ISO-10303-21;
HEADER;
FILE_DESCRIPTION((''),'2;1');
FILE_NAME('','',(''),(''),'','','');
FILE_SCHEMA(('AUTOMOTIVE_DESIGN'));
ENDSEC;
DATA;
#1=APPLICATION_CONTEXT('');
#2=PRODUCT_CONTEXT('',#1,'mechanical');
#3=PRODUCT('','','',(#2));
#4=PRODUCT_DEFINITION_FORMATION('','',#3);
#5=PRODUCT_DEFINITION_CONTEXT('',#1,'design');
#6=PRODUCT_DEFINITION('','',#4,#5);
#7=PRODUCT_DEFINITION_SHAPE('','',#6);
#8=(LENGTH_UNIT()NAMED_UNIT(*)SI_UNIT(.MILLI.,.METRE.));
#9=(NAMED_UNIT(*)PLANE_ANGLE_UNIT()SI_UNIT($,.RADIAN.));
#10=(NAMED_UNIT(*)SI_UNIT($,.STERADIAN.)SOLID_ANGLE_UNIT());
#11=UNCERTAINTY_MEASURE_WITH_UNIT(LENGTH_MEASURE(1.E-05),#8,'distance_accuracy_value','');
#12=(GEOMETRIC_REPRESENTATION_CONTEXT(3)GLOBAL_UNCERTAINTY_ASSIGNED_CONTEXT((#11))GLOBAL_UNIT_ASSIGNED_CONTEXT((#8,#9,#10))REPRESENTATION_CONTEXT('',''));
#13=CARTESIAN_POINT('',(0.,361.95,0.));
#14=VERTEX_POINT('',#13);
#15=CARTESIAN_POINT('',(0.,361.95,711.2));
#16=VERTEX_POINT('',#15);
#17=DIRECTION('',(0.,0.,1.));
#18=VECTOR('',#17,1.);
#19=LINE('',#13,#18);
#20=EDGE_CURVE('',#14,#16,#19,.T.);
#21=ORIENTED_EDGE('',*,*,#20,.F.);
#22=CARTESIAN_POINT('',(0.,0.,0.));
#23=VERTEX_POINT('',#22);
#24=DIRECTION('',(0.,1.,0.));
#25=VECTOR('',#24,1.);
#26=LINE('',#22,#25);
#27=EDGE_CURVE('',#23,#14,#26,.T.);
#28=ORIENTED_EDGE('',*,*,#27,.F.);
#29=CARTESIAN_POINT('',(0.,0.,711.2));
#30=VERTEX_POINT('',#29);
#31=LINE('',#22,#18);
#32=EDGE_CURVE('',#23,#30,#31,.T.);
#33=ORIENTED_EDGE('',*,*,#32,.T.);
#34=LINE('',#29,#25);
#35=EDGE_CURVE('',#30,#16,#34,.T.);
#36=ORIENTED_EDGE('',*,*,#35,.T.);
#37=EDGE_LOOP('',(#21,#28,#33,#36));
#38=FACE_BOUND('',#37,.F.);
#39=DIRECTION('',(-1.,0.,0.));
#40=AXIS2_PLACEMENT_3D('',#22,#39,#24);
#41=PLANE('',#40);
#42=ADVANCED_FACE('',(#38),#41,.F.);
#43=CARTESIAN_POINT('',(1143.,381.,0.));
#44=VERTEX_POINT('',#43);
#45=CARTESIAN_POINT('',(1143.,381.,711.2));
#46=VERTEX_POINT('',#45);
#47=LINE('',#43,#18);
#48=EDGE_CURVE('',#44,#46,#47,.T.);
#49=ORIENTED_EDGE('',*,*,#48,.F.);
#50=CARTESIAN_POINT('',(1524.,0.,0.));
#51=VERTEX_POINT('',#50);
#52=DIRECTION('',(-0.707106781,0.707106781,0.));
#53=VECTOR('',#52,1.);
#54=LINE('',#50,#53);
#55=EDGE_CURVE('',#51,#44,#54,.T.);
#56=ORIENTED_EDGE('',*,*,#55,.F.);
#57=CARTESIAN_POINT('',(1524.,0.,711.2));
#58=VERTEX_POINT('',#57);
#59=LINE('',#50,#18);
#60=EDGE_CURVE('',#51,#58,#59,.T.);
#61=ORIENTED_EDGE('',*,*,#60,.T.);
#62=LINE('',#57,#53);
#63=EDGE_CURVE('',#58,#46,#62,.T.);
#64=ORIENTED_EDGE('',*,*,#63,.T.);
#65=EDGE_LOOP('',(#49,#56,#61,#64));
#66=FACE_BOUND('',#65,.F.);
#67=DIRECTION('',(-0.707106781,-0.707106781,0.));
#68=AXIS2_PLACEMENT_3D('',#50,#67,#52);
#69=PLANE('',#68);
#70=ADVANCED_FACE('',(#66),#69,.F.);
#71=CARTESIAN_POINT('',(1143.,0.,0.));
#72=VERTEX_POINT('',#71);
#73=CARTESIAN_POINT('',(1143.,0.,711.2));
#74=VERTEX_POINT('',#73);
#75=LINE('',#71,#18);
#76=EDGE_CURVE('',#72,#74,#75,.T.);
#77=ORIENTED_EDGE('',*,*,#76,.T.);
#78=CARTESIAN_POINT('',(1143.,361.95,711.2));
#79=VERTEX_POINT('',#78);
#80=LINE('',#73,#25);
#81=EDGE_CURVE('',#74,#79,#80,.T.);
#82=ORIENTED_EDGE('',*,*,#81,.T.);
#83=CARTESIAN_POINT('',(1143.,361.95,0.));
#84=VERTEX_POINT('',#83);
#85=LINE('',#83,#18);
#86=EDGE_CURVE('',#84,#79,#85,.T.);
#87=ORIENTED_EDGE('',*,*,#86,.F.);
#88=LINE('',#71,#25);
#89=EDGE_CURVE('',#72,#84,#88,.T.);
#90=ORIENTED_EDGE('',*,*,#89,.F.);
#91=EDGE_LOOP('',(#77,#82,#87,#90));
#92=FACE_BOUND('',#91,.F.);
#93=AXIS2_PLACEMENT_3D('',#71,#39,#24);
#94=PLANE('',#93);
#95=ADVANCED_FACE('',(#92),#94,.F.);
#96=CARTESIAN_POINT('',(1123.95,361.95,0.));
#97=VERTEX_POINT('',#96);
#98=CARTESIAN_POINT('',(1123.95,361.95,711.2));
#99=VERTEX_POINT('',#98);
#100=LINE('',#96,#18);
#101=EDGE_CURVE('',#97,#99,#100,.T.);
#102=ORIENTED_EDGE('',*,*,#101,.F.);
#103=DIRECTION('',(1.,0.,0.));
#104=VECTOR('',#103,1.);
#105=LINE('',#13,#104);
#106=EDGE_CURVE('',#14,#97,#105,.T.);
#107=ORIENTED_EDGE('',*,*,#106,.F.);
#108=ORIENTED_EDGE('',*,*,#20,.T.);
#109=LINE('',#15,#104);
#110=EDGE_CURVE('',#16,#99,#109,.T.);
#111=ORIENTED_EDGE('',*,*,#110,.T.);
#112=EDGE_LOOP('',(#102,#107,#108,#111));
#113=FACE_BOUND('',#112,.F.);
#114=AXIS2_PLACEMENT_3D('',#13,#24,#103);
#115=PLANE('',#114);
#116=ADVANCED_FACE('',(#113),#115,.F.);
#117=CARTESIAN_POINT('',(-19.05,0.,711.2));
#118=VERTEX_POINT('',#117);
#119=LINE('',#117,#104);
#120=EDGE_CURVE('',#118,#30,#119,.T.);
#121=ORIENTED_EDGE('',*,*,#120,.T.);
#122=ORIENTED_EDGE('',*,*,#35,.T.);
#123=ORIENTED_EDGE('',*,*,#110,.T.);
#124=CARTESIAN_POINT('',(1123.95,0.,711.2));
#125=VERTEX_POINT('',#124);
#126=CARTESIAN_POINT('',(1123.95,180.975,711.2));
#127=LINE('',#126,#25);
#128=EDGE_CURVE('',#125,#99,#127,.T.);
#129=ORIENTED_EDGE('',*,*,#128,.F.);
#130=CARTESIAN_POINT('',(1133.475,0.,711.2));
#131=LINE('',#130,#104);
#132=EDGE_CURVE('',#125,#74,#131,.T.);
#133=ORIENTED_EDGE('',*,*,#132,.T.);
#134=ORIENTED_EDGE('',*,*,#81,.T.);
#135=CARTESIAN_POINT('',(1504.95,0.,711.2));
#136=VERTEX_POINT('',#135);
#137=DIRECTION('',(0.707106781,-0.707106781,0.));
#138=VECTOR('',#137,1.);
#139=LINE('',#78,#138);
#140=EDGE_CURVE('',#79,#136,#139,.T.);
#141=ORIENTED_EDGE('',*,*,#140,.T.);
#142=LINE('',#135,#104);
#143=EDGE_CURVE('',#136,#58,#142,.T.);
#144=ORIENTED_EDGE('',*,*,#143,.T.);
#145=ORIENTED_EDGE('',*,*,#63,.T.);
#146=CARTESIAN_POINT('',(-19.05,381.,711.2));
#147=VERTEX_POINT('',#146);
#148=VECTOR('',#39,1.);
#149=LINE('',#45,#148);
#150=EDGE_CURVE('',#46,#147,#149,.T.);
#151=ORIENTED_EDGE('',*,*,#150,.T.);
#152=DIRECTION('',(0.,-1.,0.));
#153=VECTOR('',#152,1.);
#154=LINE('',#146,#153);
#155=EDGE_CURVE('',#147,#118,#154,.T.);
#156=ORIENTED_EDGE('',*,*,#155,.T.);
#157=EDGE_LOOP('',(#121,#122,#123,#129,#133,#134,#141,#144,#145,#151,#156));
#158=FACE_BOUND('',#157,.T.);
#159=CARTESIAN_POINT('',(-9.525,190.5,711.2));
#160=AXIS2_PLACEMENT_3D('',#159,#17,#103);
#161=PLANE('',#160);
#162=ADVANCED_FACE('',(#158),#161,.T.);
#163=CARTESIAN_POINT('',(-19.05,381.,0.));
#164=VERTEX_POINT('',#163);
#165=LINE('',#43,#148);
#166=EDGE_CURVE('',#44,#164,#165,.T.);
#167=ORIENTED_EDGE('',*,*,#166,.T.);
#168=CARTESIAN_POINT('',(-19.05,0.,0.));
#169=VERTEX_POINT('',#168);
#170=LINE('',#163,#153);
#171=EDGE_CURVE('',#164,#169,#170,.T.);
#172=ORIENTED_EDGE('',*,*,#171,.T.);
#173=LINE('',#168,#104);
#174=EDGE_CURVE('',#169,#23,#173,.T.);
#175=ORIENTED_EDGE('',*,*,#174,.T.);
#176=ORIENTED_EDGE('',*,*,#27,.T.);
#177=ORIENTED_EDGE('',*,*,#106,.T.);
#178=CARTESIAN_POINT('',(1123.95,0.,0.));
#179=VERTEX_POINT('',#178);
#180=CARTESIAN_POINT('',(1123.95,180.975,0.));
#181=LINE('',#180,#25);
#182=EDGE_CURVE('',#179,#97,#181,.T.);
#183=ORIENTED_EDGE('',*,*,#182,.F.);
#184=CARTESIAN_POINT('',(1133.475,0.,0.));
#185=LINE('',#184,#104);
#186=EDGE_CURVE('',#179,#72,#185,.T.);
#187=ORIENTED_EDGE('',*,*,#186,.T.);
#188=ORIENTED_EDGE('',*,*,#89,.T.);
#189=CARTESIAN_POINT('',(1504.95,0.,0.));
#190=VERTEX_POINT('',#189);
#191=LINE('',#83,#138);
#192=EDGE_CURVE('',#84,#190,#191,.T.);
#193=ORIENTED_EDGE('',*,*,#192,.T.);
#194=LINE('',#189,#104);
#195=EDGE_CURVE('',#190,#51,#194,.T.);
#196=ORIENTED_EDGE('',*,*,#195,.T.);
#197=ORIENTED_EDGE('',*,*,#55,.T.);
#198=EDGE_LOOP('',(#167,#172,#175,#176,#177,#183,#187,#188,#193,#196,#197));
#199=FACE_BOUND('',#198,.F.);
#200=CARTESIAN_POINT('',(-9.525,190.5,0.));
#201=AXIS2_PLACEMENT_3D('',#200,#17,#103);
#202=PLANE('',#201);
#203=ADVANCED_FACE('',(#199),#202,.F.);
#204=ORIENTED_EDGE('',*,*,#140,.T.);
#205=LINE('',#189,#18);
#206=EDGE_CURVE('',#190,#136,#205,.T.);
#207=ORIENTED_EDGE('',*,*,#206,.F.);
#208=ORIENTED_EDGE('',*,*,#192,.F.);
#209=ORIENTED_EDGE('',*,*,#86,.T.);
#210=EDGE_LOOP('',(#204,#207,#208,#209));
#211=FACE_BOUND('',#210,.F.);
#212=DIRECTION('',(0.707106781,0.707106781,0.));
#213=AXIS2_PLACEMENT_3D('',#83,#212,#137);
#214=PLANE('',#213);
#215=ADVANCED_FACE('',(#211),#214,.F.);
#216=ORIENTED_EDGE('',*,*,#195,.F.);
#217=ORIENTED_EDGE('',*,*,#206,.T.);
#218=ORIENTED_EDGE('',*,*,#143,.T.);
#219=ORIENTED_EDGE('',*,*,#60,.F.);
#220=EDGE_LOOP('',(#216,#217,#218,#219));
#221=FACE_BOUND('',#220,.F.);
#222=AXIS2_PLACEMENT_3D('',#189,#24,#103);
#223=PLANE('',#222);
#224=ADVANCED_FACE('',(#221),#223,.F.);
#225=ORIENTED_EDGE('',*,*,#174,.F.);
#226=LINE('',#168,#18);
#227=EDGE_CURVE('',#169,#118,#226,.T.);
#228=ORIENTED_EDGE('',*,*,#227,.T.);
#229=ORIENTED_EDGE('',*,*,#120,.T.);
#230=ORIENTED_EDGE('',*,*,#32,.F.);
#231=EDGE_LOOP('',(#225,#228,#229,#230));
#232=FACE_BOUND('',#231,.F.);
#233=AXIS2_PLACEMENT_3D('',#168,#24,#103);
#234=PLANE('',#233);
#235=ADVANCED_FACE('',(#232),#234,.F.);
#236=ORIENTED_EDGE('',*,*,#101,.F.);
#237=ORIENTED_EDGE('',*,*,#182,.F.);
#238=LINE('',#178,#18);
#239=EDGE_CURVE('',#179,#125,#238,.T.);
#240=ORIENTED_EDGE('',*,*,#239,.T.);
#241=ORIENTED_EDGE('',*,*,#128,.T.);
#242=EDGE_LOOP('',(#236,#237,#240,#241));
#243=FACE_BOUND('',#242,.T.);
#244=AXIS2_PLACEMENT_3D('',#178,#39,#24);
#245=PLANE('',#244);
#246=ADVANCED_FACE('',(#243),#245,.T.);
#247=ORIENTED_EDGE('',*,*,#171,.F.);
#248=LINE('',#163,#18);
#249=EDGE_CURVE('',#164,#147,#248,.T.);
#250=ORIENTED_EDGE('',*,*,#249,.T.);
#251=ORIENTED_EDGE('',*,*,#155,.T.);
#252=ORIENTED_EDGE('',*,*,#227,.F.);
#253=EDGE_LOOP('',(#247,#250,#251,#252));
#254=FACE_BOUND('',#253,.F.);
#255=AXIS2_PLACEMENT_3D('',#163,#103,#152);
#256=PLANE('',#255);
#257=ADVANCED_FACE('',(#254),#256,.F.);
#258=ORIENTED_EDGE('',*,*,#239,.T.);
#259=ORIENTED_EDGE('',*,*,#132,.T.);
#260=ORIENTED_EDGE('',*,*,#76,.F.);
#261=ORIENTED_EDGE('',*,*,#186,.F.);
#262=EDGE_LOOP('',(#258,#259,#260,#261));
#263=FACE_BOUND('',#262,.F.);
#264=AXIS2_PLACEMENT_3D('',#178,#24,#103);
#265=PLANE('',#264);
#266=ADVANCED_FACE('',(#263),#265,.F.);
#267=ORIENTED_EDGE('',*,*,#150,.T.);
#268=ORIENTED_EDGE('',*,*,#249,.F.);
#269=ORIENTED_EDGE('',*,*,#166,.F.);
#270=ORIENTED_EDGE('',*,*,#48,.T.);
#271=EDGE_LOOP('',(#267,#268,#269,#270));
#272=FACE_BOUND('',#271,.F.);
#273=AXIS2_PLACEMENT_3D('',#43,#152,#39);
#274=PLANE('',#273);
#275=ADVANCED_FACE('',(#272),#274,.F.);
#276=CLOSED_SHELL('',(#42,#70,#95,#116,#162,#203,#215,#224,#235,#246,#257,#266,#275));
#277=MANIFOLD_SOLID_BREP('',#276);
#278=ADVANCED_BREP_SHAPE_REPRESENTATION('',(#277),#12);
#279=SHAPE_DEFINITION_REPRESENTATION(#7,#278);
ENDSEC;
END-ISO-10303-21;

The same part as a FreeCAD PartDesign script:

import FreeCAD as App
import Part
import Sketcher
from FreeCAD import Vector
Q = App.Units.Quantity

doc = App.newDocument("Part")
params = doc.addObject("Spreadsheet::Sheet", "Params")
for row, (alias, value) in enumerate([
    ("sketch1_height", "15 in"),
    ("sketch1_width", "0.75 in"),
    ("pad1_length", "28 in"),
], start=1):
    params.set(f"A{row}", alias)
    params.set(f"B{row}", "=" + value)
    params.setAlias(f"B{row}", alias)

body = doc.addObject("PartDesign::Body", "Body")

sketch1 = doc.addObject("Sketcher::SketchObject", "Sketch")
body.addObject(sketch1)
sketch1.AttachmentSupport = (doc.XY_Plane, [""])
sketch1.MapMode = "FlatFace"
sketch1.addGeometry(Part.LineSegment(Vector(-19.05, 381, 0), Vector(-19.05, 0, 0)), False)
sketch1.addGeometry(Part.LineSegment(Vector(-19.05, 0, 0), Vector(0, 0, 0)), False)
sketch1.addGeometry(Part.LineSegment(Vector(0, 0, 0), Vector(0, 361.95, 0)), False)
sketch1.addGeometry(Part.LineSegment(Vector(0, 361.95, 0), Vector(1123.95, 361.95, 0)), False)
sketch1.addGeometry(Part.LineSegment(Vector(1123.95, 361.95, 0), Vector(1123.95, 0, 0)), False)
sketch1.addGeometry(Part.LineSegment(Vector(1123.95, 0, 0), Vector(1143, 0, 0)), False)
sketch1.addGeometry(Part.LineSegment(Vector(1143, 0, 0), Vector(1143, 361.95, 0)), False)
sketch1.addGeometry(Part.LineSegment(Vector(1143, 361.95, 0), Vector(1504.95, 0, 0)), False)
sketch1.addGeometry(Part.LineSegment(Vector(1504.95, 0, 0), Vector(1524, 0, 0)), False)
sketch1.addGeometry(Part.LineSegment(Vector(1524, 0, 0), Vector(1143, 381, 0)), False)
sketch1.addGeometry(Part.LineSegment(Vector(1143, 381, 0), Vector(-19.05, 381, 0)), False)
sketch1.addConstraint(Sketcher.Constraint("Coincident", 0, 2, 1, 1))
sketch1.addConstraint(Sketcher.Constraint("Coincident", 1, 2, 2, 1))
sketch1.addConstraint(Sketcher.Constraint("Coincident", 2, 2, 3, 1))
sketch1.addConstraint(Sketcher.Constraint("Coincident", 3, 2, 4, 1))
sketch1.addConstraint(Sketcher.Constraint("Coincident", 4, 2, 5, 1))
sketch1.addConstraint(Sketcher.Constraint("Coincident", 5, 2, 6, 1))
sketch1.addConstraint(Sketcher.Constraint("Coincident", 6, 2, 7, 1))
sketch1.addConstraint(Sketcher.Constraint("Coincident", 7, 2, 8, 1))
sketch1.addConstraint(Sketcher.Constraint("Coincident", 8, 2, 9, 1))
sketch1.addConstraint(Sketcher.Constraint("Coincident", 9, 2, 10, 1))
sketch1.addConstraint(Sketcher.Constraint("Coincident", 10, 2, 0, 1))
sketch1.addConstraint(Sketcher.Constraint("Vertical", 0))
sketch1.addConstraint(Sketcher.Constraint("Horizontal", 1))
sketch1.addConstraint(Sketcher.Constraint("Vertical", 2))
sketch1.addConstraint(Sketcher.Constraint("Horizontal", 3))
sketch1.addConstraint(Sketcher.Constraint("Vertical", 4))
sketch1.addConstraint(Sketcher.Constraint("Horizontal", 5))
sketch1.addConstraint(Sketcher.Constraint("Vertical", 6))
sketch1.addConstraint(Sketcher.Constraint("Horizontal", 8))
sketch1.addConstraint(Sketcher.Constraint("Horizontal", 10))
sketch1.addConstraint(Sketcher.Constraint("Coincident", 1, 2, -1, 1))
sketch1.addConstraint(Sketcher.Constraint("PointOnObject", 4, 2, -1))
sketch1.addConstraint(Sketcher.Constraint("PointOnObject", 7, 2, -1))
sketch1.addConstraint(Sketcher.Constraint("Parallel", 7, 9))
sketch1.addConstraint(Sketcher.Constraint("Horizontal", 3, 2, 6, 2))
sketch1.addConstraint(Sketcher.Constraint("Vertical", 6, 2, 9, 2))
sketch1.addConstraint(Sketcher.Constraint("Equal", 1, 5))
sketch1.addConstraint(Sketcher.Constraint("Equal", 5, 8))
sketch1.addConstraint(Sketcher.Constraint("DistanceY", 0, 2, 0, 1, Q("15 in")))
sketch1.addConstraint(Sketcher.Constraint("DistanceX", -1, 1, 5, 2, Q("45 in")))
sketch1.addConstraint(Sketcher.Constraint("DistanceX", -1, 1, 8, 2, Q("60 in")))
sketch1.addConstraint(Sketcher.Constraint("DistanceX", 1, 1, 1, 2, Q("0.75 in")))
sketch1.setExpression("Constraints[28]", "Params.sketch1_height")
sketch1.setExpression("Constraints[31]", "Params.sketch1_width")
pad1 = doc.addObject("PartDesign::Pad", "Pad")
body.addObject(pad1)
pad1.Profile = sketch1
pad1.setExpression("Length", "Params.pad1_length")

doc.recompute()
